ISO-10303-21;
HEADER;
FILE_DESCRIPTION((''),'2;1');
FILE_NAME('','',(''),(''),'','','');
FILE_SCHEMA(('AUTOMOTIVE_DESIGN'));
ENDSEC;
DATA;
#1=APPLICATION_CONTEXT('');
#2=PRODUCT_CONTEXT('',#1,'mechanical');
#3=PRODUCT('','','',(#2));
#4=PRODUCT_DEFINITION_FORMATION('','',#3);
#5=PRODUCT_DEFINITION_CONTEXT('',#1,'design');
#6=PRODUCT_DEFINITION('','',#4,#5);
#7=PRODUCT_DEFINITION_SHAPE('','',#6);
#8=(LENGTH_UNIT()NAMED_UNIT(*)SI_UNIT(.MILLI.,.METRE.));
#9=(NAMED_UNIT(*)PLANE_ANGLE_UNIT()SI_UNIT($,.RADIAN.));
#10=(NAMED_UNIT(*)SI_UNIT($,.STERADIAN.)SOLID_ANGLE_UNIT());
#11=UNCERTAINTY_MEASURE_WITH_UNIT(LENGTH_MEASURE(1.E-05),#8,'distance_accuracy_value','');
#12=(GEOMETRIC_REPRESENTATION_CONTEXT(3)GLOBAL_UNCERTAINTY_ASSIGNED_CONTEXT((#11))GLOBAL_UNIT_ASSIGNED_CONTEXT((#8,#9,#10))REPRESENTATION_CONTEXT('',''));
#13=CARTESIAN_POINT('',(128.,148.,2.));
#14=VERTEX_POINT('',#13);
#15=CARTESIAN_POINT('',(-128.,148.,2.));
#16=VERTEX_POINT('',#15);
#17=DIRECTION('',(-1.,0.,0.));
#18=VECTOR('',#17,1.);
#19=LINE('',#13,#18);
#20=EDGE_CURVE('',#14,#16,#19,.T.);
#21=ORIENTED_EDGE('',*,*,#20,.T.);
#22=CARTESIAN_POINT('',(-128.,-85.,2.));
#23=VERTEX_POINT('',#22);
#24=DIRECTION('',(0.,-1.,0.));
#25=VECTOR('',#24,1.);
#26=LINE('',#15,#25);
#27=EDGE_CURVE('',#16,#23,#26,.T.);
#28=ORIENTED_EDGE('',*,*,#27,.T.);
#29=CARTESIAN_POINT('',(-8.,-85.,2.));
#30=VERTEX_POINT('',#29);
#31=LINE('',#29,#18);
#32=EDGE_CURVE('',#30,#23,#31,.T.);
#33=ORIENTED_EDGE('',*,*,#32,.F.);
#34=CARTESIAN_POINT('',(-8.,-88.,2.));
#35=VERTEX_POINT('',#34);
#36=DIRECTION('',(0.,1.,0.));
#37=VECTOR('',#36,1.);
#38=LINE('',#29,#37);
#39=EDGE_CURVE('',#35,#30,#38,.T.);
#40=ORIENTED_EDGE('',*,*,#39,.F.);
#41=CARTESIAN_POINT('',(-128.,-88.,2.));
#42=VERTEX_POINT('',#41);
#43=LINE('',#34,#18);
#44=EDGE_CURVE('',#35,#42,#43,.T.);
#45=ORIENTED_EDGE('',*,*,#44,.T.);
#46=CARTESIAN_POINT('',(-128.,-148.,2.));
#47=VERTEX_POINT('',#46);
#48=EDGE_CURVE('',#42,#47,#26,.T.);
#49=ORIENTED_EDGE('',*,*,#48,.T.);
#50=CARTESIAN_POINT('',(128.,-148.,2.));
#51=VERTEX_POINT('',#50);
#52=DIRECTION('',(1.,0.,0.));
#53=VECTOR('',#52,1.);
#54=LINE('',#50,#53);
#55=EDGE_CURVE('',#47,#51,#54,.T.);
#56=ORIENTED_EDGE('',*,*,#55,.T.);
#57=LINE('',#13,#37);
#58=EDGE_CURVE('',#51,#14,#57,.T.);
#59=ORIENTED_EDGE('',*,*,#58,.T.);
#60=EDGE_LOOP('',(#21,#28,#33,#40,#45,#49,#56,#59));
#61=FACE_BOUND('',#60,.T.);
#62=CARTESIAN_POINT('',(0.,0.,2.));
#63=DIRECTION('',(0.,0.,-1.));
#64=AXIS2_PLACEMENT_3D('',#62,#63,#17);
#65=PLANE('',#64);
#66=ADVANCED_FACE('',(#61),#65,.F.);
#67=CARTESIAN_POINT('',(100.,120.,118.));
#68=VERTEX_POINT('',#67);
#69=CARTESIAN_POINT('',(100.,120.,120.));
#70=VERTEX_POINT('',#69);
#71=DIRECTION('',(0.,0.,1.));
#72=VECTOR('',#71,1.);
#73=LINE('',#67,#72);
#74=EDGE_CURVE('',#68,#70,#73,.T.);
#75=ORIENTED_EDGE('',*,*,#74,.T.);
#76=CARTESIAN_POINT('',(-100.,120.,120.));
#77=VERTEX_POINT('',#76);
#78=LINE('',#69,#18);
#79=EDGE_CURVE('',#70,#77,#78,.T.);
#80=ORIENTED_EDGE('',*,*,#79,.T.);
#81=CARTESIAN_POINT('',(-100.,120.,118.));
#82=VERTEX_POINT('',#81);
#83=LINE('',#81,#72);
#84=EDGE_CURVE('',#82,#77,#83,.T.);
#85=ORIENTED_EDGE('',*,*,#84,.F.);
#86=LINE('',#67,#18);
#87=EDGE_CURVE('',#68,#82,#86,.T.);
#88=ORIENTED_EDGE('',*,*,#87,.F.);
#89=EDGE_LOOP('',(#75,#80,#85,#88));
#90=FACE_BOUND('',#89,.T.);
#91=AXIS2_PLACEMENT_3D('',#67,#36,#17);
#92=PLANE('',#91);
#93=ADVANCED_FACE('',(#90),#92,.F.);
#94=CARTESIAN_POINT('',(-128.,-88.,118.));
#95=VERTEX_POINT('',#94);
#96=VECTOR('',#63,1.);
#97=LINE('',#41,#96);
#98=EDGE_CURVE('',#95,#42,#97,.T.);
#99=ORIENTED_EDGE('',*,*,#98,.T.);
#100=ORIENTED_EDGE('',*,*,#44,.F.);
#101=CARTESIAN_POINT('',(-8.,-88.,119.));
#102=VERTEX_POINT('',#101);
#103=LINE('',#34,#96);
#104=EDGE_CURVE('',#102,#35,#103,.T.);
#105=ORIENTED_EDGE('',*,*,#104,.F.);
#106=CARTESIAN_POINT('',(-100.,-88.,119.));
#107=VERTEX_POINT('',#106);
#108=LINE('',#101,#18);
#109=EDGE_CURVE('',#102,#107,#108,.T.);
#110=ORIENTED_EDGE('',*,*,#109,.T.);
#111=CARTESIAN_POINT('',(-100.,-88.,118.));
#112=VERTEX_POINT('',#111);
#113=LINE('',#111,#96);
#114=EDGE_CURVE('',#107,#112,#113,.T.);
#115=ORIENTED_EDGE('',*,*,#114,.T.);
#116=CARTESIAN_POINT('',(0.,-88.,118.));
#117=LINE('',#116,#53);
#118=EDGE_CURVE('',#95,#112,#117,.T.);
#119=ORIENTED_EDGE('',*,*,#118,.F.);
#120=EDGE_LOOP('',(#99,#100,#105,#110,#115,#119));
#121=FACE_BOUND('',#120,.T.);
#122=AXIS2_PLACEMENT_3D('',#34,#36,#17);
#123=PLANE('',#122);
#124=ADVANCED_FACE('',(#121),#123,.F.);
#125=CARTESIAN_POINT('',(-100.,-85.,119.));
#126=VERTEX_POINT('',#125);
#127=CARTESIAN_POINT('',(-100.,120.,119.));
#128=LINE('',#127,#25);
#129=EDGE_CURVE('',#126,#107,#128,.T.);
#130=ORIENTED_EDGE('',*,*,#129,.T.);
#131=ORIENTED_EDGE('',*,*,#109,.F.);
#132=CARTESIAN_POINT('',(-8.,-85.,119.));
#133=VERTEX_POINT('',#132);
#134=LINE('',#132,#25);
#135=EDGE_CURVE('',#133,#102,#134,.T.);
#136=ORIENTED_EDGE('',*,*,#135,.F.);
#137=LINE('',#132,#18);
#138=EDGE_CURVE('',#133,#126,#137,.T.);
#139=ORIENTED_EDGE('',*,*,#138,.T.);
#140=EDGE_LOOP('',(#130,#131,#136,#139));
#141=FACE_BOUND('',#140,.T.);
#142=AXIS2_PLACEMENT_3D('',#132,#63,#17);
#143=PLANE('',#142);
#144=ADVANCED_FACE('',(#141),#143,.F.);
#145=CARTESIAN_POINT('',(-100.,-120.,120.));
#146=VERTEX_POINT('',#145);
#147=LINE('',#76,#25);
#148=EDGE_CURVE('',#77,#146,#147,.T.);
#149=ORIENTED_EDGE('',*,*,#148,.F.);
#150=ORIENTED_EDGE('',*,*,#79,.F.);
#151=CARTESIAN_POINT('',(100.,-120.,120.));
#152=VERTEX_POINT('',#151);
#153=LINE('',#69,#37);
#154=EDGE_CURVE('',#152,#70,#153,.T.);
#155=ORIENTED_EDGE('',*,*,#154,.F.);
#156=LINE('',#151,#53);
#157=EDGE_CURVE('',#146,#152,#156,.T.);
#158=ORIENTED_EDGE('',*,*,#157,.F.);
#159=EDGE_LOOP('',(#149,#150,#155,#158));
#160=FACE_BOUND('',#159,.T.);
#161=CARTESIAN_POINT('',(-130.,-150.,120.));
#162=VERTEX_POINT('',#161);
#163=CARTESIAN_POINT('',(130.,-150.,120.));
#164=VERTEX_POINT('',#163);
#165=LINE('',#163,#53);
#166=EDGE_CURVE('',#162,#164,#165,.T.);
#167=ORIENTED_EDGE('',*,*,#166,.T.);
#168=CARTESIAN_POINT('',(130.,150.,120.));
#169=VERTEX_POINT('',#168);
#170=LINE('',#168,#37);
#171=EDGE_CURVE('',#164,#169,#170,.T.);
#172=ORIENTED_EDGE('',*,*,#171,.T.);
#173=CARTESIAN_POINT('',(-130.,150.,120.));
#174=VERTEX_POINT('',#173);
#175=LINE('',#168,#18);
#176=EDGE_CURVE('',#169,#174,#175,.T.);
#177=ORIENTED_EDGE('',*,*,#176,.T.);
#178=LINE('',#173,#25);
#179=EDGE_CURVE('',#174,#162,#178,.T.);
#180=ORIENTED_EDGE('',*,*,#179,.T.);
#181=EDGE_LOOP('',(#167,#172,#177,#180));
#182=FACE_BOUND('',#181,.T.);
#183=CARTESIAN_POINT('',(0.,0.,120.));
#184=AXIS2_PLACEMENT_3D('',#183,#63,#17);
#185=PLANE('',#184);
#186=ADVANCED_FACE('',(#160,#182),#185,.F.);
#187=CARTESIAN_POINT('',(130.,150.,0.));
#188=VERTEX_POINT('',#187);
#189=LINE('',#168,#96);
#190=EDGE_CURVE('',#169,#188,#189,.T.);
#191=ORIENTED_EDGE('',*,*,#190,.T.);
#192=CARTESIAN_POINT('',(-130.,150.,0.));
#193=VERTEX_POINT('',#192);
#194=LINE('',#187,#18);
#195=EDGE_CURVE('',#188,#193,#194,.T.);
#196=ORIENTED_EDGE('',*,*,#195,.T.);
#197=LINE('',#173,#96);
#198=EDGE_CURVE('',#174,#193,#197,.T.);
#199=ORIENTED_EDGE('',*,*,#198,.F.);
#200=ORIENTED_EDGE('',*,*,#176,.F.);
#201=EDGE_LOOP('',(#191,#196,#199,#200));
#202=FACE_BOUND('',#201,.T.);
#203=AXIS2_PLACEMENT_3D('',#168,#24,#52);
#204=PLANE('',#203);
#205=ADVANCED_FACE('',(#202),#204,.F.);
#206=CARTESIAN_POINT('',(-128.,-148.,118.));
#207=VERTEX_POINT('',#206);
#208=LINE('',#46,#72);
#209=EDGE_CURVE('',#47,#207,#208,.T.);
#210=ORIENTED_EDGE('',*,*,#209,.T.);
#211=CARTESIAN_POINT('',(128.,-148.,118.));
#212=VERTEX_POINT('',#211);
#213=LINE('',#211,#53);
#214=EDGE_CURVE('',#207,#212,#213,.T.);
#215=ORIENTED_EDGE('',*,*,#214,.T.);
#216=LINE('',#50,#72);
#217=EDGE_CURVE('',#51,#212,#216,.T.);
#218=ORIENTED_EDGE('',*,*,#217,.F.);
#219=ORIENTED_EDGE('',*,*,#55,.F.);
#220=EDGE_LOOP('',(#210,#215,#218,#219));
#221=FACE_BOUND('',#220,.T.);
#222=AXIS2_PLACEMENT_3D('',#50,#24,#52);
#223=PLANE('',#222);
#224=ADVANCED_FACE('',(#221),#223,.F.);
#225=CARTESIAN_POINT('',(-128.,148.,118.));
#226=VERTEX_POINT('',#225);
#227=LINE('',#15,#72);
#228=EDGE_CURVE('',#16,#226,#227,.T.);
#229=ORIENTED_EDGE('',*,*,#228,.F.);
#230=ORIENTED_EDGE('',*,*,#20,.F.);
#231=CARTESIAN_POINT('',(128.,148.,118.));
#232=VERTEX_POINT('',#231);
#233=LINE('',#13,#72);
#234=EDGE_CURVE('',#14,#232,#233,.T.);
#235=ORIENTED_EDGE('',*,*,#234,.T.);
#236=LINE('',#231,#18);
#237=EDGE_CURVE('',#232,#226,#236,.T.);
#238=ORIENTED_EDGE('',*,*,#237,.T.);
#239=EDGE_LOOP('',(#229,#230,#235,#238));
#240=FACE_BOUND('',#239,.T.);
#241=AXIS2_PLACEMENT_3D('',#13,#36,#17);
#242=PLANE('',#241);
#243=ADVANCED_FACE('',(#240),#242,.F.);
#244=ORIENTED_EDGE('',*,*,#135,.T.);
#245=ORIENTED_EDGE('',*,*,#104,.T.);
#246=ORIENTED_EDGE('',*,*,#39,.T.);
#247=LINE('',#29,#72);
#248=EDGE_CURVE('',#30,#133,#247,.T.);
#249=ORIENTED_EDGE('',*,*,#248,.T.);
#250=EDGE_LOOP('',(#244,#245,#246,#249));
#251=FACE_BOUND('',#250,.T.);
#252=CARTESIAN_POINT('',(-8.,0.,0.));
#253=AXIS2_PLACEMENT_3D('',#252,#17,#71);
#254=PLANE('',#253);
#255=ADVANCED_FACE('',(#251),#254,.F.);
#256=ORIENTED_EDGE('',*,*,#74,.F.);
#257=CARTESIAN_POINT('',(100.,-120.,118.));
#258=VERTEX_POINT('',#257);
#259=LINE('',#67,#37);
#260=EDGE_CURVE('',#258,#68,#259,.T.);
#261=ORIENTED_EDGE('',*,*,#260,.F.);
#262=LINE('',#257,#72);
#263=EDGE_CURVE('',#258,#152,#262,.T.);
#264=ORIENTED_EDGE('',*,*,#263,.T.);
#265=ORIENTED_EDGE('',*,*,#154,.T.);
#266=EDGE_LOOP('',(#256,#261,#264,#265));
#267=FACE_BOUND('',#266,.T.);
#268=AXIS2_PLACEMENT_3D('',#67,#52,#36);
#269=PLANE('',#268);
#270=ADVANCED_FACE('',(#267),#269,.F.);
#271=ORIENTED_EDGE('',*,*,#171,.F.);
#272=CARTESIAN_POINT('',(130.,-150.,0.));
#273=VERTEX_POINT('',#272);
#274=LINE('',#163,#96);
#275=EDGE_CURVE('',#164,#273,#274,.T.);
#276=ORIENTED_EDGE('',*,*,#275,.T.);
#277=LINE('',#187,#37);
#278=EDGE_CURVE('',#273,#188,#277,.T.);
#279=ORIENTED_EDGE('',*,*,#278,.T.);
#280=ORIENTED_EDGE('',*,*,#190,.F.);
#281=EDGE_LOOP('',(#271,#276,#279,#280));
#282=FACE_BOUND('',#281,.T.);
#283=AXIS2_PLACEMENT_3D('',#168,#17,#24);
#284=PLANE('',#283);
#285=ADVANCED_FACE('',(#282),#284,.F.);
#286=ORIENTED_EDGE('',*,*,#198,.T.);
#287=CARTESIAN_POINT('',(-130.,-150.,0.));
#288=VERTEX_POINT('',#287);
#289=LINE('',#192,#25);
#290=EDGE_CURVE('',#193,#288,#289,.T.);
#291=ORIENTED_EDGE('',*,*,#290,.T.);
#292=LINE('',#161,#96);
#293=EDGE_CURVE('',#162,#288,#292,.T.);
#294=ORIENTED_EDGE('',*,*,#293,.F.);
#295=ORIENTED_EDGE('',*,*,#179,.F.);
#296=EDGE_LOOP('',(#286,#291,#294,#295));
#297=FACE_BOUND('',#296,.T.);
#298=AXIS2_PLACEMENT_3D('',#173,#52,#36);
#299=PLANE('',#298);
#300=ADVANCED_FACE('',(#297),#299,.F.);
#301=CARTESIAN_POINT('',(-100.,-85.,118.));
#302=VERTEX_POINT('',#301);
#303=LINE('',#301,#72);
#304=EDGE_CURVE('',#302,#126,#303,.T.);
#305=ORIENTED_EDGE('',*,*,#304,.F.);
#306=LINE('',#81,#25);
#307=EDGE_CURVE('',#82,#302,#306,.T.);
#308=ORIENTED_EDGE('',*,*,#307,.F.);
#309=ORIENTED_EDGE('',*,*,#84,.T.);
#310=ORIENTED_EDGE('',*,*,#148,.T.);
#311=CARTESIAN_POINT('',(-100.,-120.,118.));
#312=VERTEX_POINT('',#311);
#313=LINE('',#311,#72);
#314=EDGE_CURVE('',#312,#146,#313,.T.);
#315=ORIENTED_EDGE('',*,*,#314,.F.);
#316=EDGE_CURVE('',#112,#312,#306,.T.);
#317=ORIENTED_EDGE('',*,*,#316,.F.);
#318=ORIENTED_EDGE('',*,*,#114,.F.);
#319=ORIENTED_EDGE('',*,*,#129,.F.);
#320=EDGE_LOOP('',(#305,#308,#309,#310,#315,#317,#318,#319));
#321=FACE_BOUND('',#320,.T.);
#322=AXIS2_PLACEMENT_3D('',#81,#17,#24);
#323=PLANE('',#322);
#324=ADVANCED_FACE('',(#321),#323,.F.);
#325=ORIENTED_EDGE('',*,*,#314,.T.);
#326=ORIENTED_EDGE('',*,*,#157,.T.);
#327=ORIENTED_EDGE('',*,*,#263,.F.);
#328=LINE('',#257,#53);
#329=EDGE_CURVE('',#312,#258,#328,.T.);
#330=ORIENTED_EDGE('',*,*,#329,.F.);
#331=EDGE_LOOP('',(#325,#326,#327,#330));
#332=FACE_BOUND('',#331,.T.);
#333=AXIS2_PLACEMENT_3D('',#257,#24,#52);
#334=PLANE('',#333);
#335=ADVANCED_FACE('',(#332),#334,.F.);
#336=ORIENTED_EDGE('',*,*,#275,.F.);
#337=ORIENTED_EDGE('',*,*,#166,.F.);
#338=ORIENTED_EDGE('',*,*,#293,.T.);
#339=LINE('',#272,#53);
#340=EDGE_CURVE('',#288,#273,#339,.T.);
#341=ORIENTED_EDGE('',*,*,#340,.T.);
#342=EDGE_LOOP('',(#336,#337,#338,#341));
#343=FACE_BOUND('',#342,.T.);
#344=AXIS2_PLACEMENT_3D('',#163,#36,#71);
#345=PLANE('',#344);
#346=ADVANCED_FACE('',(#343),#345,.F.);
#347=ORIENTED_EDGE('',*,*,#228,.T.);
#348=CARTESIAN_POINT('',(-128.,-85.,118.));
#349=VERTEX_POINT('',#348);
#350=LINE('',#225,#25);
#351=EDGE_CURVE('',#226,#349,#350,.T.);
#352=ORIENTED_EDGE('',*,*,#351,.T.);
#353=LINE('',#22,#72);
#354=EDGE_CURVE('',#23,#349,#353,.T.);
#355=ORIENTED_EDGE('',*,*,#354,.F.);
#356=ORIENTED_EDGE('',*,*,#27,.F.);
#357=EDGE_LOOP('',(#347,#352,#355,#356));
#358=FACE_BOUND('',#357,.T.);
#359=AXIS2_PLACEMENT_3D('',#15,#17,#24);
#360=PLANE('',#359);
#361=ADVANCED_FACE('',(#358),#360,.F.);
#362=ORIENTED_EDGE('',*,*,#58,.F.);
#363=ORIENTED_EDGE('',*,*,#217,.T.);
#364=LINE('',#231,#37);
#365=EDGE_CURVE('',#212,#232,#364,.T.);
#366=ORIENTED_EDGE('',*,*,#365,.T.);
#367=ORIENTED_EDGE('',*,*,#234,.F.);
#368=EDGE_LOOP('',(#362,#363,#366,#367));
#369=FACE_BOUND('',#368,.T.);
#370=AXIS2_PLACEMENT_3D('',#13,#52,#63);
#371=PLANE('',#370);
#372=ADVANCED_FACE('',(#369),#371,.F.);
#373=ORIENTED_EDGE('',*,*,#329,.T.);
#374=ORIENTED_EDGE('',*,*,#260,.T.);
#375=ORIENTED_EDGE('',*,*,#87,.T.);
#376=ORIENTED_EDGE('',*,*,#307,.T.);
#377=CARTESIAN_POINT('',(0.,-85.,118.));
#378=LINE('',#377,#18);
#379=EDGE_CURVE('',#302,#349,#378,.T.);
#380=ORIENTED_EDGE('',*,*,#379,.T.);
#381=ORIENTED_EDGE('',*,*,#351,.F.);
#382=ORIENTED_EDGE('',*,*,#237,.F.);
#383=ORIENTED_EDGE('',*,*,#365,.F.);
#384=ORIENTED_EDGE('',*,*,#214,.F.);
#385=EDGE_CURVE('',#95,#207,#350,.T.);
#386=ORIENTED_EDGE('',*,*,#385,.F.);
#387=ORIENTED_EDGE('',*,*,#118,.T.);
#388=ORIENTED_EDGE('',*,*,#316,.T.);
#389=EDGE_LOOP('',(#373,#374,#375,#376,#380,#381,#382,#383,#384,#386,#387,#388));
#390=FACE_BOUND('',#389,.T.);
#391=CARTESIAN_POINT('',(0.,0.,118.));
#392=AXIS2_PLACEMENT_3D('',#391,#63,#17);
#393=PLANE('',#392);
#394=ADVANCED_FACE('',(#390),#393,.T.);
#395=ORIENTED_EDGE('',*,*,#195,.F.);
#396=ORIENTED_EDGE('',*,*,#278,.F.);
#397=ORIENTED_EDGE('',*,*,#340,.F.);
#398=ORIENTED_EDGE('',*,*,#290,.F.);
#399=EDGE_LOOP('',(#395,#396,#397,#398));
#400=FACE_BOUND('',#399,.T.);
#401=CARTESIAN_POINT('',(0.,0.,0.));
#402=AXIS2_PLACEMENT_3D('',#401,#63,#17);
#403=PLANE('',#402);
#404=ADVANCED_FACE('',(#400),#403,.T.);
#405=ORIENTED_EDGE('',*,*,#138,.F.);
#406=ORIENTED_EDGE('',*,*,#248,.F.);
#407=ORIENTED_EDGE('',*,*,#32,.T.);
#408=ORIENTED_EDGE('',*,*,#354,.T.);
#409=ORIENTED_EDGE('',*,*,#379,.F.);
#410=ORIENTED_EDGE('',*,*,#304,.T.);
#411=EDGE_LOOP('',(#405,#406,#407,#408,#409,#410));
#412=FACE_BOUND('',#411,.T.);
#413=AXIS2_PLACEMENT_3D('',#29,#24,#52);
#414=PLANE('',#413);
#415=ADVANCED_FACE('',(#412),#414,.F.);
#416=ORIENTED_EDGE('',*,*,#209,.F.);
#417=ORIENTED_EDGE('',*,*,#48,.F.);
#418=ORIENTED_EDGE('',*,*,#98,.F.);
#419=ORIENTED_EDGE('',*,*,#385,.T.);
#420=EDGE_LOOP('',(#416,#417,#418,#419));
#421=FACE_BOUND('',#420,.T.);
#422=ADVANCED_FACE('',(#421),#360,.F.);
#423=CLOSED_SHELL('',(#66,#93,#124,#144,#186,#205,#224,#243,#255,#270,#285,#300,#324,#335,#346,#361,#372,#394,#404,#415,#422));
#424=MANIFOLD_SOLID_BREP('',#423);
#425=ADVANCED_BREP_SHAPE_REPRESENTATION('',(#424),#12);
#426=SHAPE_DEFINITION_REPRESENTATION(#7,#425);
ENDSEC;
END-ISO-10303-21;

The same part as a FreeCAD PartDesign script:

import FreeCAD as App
import Part
import Sketcher

V = App.Vector

doc = App.newDocument("Part")
body = doc.addObject("PartDesign::Body", "Body")

# Sketch on XY plane
sketch1 = doc.addObject("Sketcher::SketchObject", "Sketch")
body.addObject(sketch1)
sketch1.AttachmentSupport = (doc.XY_Plane, [""])
sketch1.MapMode = "FlatFace"
sketch1.addGeometry(Part.LineSegment(V(-130, 150, 0), V(-130, -150, 0)), False)
sketch1.addGeometry(Part.LineSegment(V(-130, -150, 0), V(130, -150, 0)), False)
sketch1.addGeometry(Part.LineSegment(V(130, -150, 0), V(130, 150, 0)), False)
sketch1.addGeometry(Part.LineSegment(V(130, 150, 0), V(-130, 150, 0)), False)
sketch1.addConstraint(Sketcher.Constraint("Coincident", 0, 2, 1, 1))
sketch1.addConstraint(Sketcher.Constraint("Coincident", 1, 2, 2, 1))
sketch1.addConstraint(Sketcher.Constraint("Coincident", 2, 2, 3, 1))
sketch1.addConstraint(Sketcher.Constraint("Coincident", 3, 2, 0, 1))
sketch1.addConstraint(Sketcher.Constraint("Vertical", 0))
sketch1.addConstraint(Sketcher.Constraint("Horizontal", 1))
sketch1.addConstraint(Sketcher.Constraint("Vertical", 2))
sketch1.addConstraint(Sketcher.Constraint("Horizontal", 3))
sketch1.addConstraint(Sketcher.Constraint("Symmetric", 0, 2, 2, 2, -1, 1))
sketch1.addConstraint(Sketcher.Constraint("DistanceX", 1, 1, 1, 2, 260.0))
sketch1.addConstraint(Sketcher.Constraint("DistanceY", 0, 2, 0, 1, 300.0))
pad1 = doc.addObject("PartDesign::Pad", "Pad")
body.addObject(pad1)
pad1.Profile = sketch1
pad1.Length = 120

# Sketch on XY plane
sketch2 = doc.addObject("Sketcher::SketchObject", "Sketch001")
body.addObject(sketch2)
sketch2.AttachmentSupport = (doc.XY_Plane, [""])
sketch2.MapMode = "FlatFace"
sketch2.AttachmentOffset = App.Placement(V(0, 0, 120), App.Rotation())
sketch2.addGeometry(Part.LineSegment(V(-100, 120, 0), V(-100, -120, 0)), False)
sketch2.addGeometry(Part.LineSegment(V(-100, -120, 0), V(100, -120, 0)), False)
sketch2.addGeometry(Part.LineSegment(V(100, -120, 0), V(100, 120, 0)), False)
sketch2.addGeometry(Part.LineSegment(V(100, 120, 0), V(-100, 120, 0)), False)
sketch2.addConstraint(Sketcher.Constraint("Coincident", 0, 2, 1, 1))
sketch2.addConstraint(Sketcher.Constraint("Coincident", 1, 2, 2, 1))
sketch2.addConstraint(Sketcher.Constraint("Coincident", 2, 2, 3, 1))
sketch2.addConstraint(Sketcher.Constraint("Coincident", 3, 2, 0, 1))
sketch2.addConstraint(Sketcher.Constraint("Vertical", 0))
sketch2.addConstraint(Sketcher.Constraint("Horizontal", 1))
sketch2.addConstraint(Sketcher.Constraint("Vertical", 2))
sketch2.addConstraint(Sketcher.Constraint("Horizontal", 3))
sketch2.addConstraint(Sketcher.Constraint("Symmetric", 0, 2, 2, 2, -1, 1))
sketch2.addConstraint(Sketcher.Constraint("DistanceX", 1, 1, 1, 2, 200.0))
sketch2.addConstraint(Sketcher.Constraint("DistanceY", 0, 2, 0, 1, 240.0))
pocket1 = doc.addObject("PartDesign::Pocket", "Pocket")
body.addObject(pocket1)
pocket1.Profile = sketch2
pocket1.Length = 2

# Sketch on XY plane
sketch3 = doc.addObject("Sketcher::SketchObject", "Sketch002")
body.addObject(sketch3)
sketch3.AttachmentSupport = (doc.XY_Plane, [""])
sketch3.MapMode = "FlatFace"
sketch3.AttachmentOffset = App.Placement(V(0, 0, 118), App.Rotation())
sketch3.addGeometry(Part.LineSegment(V(-128, 148, 0), V(-128, -148, 0)), False)
sketch3.addGeometry(Part.LineSegment(V(-128, -148, 0), V(128, -148, 0)), False)
sketch3.addGeometry(Part.LineSegment(V(128, -148, 0), V(128, 148, 0)), False)
sketch3.addGeometry(Part.LineSegment(V(128, 148, 0), V(-128, 148, 0)), False)
sketch3.addConstraint(Sketcher.Constraint("Coincident", 0, 2, 1, 1))
sketch3.addConstraint(Sketcher.Constraint("Coincident", 1, 2, 2, 1))
sketch3.addConstraint(Sketcher.Constraint("Coincident", 2, 2, 3, 1))
sketch3.addConstraint(Sketcher.Constraint("Coincident", 3, 2, 0, 1))
sketch3.addConstraint(Sketcher.Constraint("Vertical", 0))
sketch3.addConstraint(Sketcher.Constraint("Horizontal", 1))
sketch3.addConstraint(Sketcher.Constraint("Vertical", 2))
sketch3.addConstraint(Sketcher.Constraint("Horizontal", 3))
sketch3.addConstraint(Sketcher.Constraint("Symmetric", 0, 2, 2, 2, -1, 1))
sketch3.addConstraint(Sketcher.Constraint("DistanceX", 1, 1, 1, 2, 256.0))
sketch3.addConstraint(Sketcher.Constraint("DistanceY", 0, 2, 0, 1, 296.0))
pocket2 = doc.addObject("PartDesign::Pocket", "Pocket001")
body.addObject(pocket2)
pocket2.Profile = sketch3
pocket2.Length = 116

# Sketch on YZ plane
sketch4 = doc.addObject("Sketcher::SketchObject", "Sketch003")
body.addObject(sketch4)
sketch4.AttachmentSupport = (doc.YZ_Plane, [""])
sketch4.MapMode = "FlatFace"
sketch4.AttachmentOffset = App.Placement(V(0, 0, -128), App.Rotation())
sketch4.addGeometry(Part.LineSegment(V(-85, 119, 0), V(-88, 119, 0)), False)
sketch4.addGeometry(Part.LineSegment(V(-88, 119, 0), V(-88, 2, 0)), False)
sketch4.addGeometry(Part.LineSegment(V(-88, 2, 0), V(-85, 2, 0)), False)
sketch4.addGeometry(Part.LineSegment(V(-85, 2, 0), V(-85, 119, 0)), False)
sketch4.addConstraint(Sketcher.Constraint("Coincident", 0, 2, 1, 1))
sketch4.addConstraint(Sketcher.Constraint("Coincident", 1, 2, 2, 1))
sketch4.addConstraint(Sketcher.Constraint("Coincident", 2, 2, 3, 1))
sketch4.addConstraint(Sketcher.Constraint("Coincident", 3, 2, 0, 1))
sketch4.addConstraint(Sketcher.Constraint("Horizontal", 0))
sketch4.addConstraint(Sketcher.Constraint("Vertical", 1))
sketch4.addConstraint(Sketcher.Constraint("Horizontal", 2))
sketch4.addConstraint(Sketcher.Constraint("Vertical", 3))
sketch4.addConstraint(Sketcher.Constraint("DistanceX", 0, 2, 0, 1, 3.0))
sketch4.addConstraint(Sketcher.Constraint("DistanceY", 1, 2, 1, 1, 117.0))
sketch4.addConstraint(Sketcher.Constraint("DistanceX", 0, 2, -1, 1, 88.0))
sketch4.addConstraint(Sketcher.Constraint("DistanceY", -1, 1, 0, 2, 119.0))
pad2 = doc.addObject("PartDesign::Pad", "Pad001")
body.addObject(pad2)
pad2.Profile = sketch4
pad2.Length = 120

doc.recompute()
